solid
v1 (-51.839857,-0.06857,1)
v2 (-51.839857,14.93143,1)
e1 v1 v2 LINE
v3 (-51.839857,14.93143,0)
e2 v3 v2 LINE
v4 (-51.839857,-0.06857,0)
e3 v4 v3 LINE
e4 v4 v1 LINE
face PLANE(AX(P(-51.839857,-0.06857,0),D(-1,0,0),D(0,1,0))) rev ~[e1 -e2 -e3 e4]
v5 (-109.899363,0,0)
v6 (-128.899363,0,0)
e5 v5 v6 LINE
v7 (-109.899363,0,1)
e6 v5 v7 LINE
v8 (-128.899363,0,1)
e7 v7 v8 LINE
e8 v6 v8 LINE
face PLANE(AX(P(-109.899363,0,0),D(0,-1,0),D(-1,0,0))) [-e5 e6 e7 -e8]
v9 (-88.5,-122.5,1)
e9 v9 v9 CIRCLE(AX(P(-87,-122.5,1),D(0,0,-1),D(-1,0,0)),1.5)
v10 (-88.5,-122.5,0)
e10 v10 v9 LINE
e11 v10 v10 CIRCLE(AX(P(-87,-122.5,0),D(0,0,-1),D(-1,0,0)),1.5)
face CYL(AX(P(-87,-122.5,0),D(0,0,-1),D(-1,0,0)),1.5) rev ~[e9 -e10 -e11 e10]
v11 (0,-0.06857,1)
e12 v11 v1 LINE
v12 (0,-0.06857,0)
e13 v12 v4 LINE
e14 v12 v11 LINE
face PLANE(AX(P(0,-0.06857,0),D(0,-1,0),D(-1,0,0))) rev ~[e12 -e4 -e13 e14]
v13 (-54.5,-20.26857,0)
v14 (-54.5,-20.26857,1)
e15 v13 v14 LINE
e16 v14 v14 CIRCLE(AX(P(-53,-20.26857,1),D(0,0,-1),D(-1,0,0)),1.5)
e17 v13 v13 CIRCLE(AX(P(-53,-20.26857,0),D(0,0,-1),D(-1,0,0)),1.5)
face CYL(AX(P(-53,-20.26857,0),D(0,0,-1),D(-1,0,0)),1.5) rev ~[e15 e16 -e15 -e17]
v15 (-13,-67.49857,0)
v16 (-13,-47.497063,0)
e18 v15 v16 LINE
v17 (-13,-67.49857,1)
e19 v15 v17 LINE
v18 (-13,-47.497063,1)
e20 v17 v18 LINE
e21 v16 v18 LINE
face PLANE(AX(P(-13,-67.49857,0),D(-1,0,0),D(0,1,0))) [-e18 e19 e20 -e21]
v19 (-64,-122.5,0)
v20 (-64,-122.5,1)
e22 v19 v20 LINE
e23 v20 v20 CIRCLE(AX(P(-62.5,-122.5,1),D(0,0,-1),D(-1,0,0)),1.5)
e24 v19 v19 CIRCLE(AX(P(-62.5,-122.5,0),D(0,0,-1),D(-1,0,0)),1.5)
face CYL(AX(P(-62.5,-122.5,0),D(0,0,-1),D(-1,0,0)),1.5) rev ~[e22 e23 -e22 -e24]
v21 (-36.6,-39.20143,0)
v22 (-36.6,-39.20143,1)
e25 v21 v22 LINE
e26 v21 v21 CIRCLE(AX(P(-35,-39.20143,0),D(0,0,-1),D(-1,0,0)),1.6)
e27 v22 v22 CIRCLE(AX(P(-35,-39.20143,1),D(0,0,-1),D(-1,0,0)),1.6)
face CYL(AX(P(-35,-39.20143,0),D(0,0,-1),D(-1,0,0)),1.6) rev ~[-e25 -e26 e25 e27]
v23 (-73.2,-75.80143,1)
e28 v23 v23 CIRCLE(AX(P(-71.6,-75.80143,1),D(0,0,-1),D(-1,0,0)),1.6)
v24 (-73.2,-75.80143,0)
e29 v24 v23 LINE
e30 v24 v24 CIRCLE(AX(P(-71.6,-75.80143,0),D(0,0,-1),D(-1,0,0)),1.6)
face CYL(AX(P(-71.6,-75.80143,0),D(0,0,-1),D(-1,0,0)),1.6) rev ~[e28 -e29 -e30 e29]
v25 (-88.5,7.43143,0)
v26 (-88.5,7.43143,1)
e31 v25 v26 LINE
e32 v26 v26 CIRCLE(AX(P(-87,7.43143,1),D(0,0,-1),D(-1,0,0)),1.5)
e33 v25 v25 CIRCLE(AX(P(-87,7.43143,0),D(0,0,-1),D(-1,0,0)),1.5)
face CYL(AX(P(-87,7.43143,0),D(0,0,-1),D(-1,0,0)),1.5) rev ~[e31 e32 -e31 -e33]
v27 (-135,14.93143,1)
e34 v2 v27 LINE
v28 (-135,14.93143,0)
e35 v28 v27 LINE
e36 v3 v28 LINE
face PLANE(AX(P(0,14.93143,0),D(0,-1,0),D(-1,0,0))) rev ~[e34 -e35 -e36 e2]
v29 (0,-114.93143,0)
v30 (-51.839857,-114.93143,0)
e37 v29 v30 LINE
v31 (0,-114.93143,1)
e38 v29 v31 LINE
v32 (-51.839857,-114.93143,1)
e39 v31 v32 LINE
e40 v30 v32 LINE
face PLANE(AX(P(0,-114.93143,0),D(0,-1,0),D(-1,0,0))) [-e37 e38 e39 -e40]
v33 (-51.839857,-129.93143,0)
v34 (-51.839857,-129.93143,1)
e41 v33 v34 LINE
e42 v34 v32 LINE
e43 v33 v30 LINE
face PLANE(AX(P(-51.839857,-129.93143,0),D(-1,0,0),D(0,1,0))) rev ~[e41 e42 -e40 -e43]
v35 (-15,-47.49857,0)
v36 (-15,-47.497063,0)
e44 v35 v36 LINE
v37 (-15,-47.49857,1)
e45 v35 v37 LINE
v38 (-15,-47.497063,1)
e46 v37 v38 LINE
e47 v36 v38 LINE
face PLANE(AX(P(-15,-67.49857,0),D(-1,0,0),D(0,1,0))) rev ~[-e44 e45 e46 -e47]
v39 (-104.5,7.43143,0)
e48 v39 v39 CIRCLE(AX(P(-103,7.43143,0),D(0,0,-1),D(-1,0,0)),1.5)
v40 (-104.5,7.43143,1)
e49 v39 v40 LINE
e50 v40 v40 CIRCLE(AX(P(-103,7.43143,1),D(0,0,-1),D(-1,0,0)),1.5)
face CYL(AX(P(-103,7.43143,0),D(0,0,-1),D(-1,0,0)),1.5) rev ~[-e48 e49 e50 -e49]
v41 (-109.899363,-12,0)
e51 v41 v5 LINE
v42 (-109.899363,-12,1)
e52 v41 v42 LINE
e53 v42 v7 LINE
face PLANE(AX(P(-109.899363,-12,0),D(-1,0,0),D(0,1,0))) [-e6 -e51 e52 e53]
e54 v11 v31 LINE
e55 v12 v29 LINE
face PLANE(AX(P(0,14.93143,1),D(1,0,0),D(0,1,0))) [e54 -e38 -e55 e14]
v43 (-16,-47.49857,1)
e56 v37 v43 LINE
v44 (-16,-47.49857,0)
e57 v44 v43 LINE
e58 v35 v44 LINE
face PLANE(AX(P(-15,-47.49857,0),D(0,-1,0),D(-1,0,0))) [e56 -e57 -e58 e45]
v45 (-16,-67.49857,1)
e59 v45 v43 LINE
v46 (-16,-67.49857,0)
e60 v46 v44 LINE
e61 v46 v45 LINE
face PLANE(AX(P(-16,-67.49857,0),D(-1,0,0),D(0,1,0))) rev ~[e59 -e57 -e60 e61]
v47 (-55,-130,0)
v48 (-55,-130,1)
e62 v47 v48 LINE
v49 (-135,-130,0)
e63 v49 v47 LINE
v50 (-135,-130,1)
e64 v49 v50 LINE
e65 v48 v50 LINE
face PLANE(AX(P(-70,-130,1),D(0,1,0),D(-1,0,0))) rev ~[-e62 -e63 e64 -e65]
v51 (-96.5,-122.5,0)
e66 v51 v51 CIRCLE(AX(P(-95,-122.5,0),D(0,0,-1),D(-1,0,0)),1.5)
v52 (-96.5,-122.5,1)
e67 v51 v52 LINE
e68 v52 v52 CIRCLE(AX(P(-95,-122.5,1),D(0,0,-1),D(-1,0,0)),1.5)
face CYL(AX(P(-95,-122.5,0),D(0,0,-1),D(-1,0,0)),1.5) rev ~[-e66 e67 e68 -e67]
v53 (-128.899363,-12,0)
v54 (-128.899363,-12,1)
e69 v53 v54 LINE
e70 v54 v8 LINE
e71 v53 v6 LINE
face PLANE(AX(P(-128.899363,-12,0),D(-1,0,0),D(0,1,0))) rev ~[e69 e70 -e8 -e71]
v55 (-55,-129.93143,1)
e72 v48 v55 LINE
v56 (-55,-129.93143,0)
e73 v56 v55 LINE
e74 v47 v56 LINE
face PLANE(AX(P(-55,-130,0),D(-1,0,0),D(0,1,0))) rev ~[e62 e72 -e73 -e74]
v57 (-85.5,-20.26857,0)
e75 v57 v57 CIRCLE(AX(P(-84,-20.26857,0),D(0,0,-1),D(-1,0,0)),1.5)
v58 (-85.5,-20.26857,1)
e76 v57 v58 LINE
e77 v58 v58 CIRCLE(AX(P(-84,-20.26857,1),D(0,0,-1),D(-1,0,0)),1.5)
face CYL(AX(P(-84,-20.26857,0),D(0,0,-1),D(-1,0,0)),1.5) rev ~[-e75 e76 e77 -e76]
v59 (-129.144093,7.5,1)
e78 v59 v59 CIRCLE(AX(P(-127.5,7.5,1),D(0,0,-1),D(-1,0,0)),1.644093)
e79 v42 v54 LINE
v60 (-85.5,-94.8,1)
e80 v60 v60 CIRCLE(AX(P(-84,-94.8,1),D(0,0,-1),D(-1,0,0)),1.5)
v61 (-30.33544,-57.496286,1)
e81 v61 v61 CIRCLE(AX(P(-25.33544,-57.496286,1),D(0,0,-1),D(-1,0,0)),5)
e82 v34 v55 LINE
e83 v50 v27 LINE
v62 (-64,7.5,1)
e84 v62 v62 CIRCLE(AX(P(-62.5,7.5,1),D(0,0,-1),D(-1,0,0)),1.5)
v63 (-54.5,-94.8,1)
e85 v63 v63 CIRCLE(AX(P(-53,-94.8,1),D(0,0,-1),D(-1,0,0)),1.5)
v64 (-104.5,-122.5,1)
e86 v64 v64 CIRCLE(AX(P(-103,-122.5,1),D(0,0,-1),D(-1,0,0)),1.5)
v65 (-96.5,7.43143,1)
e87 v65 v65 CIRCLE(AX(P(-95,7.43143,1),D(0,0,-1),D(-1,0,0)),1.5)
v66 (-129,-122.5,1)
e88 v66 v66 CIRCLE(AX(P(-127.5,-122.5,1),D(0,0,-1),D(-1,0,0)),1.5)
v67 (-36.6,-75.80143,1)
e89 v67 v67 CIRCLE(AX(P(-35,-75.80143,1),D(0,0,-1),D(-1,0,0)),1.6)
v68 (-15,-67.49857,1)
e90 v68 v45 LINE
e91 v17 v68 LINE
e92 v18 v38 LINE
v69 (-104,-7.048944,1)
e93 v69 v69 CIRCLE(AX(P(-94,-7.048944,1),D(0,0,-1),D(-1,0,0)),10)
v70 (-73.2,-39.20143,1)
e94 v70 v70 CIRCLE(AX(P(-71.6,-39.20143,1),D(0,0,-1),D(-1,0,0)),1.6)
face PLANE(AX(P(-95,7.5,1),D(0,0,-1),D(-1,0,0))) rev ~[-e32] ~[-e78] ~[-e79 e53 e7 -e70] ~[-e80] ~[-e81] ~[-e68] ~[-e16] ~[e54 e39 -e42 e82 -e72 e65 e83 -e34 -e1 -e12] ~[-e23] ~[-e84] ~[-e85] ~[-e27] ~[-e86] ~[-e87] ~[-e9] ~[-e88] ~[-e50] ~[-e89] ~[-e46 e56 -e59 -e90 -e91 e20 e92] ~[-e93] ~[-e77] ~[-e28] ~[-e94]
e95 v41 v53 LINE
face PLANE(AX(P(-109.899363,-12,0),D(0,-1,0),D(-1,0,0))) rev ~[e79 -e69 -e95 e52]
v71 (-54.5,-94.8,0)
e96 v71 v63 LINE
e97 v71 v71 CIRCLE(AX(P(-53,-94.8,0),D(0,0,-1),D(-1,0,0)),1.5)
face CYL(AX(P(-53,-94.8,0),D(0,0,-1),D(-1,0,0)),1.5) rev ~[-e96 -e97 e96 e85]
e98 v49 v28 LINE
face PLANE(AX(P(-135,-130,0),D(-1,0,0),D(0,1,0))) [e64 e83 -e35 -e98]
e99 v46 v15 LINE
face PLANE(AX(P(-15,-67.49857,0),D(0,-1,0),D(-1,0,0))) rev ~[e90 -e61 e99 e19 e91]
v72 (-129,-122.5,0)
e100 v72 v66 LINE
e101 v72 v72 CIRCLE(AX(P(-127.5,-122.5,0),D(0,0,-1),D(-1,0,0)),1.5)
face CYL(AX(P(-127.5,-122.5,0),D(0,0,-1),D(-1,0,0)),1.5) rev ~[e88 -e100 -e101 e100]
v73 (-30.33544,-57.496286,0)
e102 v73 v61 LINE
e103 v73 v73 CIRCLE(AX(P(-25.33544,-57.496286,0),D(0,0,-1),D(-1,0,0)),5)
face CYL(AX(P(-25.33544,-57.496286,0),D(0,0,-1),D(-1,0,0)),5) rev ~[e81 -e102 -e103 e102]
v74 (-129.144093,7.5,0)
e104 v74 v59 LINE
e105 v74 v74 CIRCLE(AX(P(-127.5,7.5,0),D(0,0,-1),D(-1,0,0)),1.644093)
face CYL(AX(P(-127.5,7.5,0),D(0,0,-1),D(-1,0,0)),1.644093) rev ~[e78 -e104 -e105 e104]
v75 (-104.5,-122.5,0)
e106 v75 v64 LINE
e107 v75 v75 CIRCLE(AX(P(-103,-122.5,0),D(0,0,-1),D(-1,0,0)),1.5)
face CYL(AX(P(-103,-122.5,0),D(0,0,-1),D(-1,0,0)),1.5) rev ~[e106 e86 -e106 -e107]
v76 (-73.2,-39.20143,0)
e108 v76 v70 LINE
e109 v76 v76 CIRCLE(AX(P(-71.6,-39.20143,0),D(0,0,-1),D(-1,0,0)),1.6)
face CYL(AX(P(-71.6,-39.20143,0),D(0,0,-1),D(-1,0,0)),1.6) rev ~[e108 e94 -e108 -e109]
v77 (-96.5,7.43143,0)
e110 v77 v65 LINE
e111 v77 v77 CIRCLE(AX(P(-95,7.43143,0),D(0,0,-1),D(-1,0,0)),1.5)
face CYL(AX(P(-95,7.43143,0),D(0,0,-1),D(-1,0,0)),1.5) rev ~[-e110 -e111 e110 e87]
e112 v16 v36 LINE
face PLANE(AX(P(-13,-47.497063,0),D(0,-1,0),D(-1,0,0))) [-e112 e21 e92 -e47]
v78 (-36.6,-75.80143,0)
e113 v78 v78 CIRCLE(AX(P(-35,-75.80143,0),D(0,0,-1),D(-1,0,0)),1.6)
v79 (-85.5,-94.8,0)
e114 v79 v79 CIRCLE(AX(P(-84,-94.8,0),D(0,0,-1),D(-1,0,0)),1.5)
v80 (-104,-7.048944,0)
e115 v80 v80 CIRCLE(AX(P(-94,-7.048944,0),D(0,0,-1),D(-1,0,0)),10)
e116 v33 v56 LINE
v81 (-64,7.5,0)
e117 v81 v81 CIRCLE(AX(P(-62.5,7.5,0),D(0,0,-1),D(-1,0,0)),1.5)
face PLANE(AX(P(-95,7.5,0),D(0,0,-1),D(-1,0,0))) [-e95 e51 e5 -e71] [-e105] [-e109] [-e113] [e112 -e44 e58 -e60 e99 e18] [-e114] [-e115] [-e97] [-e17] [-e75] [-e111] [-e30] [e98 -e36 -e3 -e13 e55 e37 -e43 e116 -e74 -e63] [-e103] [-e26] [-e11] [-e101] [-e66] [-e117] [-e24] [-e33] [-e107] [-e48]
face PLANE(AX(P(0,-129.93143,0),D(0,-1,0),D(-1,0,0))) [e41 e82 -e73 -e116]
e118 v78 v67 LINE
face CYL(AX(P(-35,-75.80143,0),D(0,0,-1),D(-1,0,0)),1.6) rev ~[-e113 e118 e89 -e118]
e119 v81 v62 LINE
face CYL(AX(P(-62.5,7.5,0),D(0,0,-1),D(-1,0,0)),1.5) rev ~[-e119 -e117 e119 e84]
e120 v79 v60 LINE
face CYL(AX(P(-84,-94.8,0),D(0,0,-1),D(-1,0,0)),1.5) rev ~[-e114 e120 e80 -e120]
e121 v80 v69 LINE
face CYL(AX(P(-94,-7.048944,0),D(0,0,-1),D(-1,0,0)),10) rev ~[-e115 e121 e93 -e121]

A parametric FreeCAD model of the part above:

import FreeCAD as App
import Part
import Sketcher

V = App.Vector
Q = App.Units.Quantity

doc = App.newDocument("Part")
body = doc.addObject("PartDesign::Body", "Body")
body.AllowCompound = True

# Sketch on XY plane
sketch1 = body.newObject("Sketcher::SketchObject", "Sketch")
sketch1.AttachmentSupport = (doc.getObject("XY_Plane"), [""])
sketch1.MapMode = "FlatFace"
sketch1.addGeometry(Part.LineSegment(V(-135, 0, 0), V(-135, -115, 0)), False)
sketch1.addGeometry(Part.LineSegment(V(-135, -115, 0), V(0, -115, 0)), False)
sketch1.addGeometry(Part.LineSegment(V(0, -115, 0), V(0, 0, 0)), False)
sketch1.addGeometry(Part.LineSegment(V(0, 0, 0), V(-135, 0, 0)), False)
sketch1.addConstraint(Sketcher.Constraint("Coincident", 0, 2, 1, 1))
sketch1.addConstraint(Sketcher.Constraint("Coincident", 1, 2, 2, 1))
sketch1.addConstraint(Sketcher.Constraint("Coincident", 2, 2, 3, 1))
sketch1.addConstraint(Sketcher.Constraint("Coincident", 3, 2, 0, 1))
sketch1.addConstraint(Sketcher.Constraint("Vertical", 0))
sketch1.addConstraint(Sketcher.Constraint("Horizontal", 1))
sketch1.addConstraint(Sketcher.Constraint("Vertical", 2))
sketch1.addConstraint(Sketcher.Constraint("Horizontal", 3))
sketch1.addConstraint(Sketcher.Constraint("Coincident", 2, 2, -1, 1))
sketch1.addConstraint(Sketcher.Constraint("DistanceX", 1, 1, 1, 2, Q("135 mm")))
sketch1.addConstraint(Sketcher.Constraint("DistanceY", 0, 2, 0, 1, Q("115 mm")))
pad1 = body.newObject("PartDesign::Pad", "Pad")
pad1.Profile = sketch1
pad1.Length = 1

# Sketch on XY plane
sketch2 = body.newObject("Sketcher::SketchObject", "Sketch001")
sketch2.AttachmentSupport = (doc.getObject("XY_Plane"), [""])
sketch2.MapMode = "FlatFace"
sketch2.addGeometry(Part.LineSegment(V(-120, -115, 0), V(-120, -130, 0)), False)
sketch2.addGeometry(Part.LineSegment(V(-120, -130, 0), V(-135, -130, 0)), False)
sketch2.addGeometry(Part.LineSegment(V(-135, -130, 0), V(-135, -115, 0)), False)
sketch2.addGeometry(Part.LineSegment(V(-135, -115, 0), V(-120, -115, 0)), False)
sketch2.addGeometry(Part.LineSegment(V(-120, 15, 0), V(-120, 0, 0)), False)
sketch2.addGeometry(Part.LineSegment(V(-120, 0, 0), V(-135, 0, 0)), False)
sketch2.addGeometry(Part.LineSegment(V(-135, 0, 0), V(-135, 15, 0)), False)
sketch2.addGeometry(Part.LineSegment(V(-135, 15, 0), V(-120, 15, 0)), False)
sketch2.addConstraint(Sketcher.Constraint("Coincident", 0, 2, 1, 1))
sketch2.addConstraint(Sketcher.Constraint("Coincident", 1, 2, 2, 1))
sketch2.addConstraint(Sketcher.Constraint("Coincident", 2, 2, 3, 1))
sketch2.addConstraint(Sketcher.Constraint("Coincident", 3, 2, 0, 1))
sketch2.addConstraint(Sketcher.Constraint("Coincident", 4, 2, 5, 1))
sketch2.addConstraint(Sketcher.Constraint("Coincident", 5, 2, 6, 1))
sketch2.addConstraint(Sketcher.Constraint("Coincident", 6, 2, 7, 1))
sketch2.addConstraint(Sketcher.Constraint("Coincident", 7, 2, 4, 1))
sketch2.addConstraint(Sketcher.Constraint("Vertical", 0))
sketch2.addConstraint(Sketcher.Constraint("Horizontal", 1))
sketch2.addConstraint(Sketcher.Constraint("Vertical", 2))
sketch2.addConstraint(Sketcher.Constraint("Horizontal", 3))
sketch2.addConstraint(Sketcher.Constraint("Vertical", 4))
sketch2.addConstraint(Sketcher.Constraint("Horizontal", 5))
sketch2.addConstraint(Sketcher.Constraint("Vertical", 6))
sketch2.addConstraint(Sketcher.Constraint("Horizontal", 7))
sketch2.addConstraint(Sketcher.Constraint("PointOnObject", 4, 2, -1))
sketch2.addConstraint(Sketcher.Constraint("Vertical", 3, 2, 4, 2))
sketch2.addConstraint(Sketcher.Constraint("Vertical", 2, 2, 5, 2))
sketch2.addConstraint(Sketcher.Constraint("Equal", 7, 0))
sketch2.addConstraint(Sketcher.Constraint("Equal", 2, 4))
sketch2.addConstraint(Sketcher.Constraint("DistanceX", 1, 2, 1, 1, Q("15 mm")))
sketch2.addConstraint(Sketcher.Constraint("DistanceX", 0, 2, -1, 1, Q("120 mm")))
sketch2.addConstraint(Sketcher.Constraint("DistanceY", 0, 2, -1, 1, Q("130 mm")))
pad2 = body.newObject("PartDesign::Pad", "Pad001")
pad2.Profile = sketch2
pad2.Length = 1

# Sketch on XY plane
sketch3 = body.newObject("Sketcher::SketchObject", "Sketch002")
sketch3.AttachmentSupport = (doc.getObject("XY_Plane"), [""])
sketch3.MapMode = "FlatFace"
sketch3.addGeometry(Part.LineSegment(V(-55, -115, 0), V(-55, -130, 0)), False)
sketch3.addGeometry(Part.LineSegment(V(-55, -130, 0), V(-70, -130, 0)), False)
sketch3.addGeometry(Part.LineSegment(V(-70, -130, 0), V(-70, -115, 0)), False)
sketch3.addGeometry(Part.LineSegment(V(-70, -115, 0), V(-55, -115, 0)), False)
sketch3.addGeometry(Part.LineSegment(V(-55, 15, 0), V(-55, 0, 0)), False)
sketch3.addGeometry(Part.LineSegment(V(-55, 0, 0), V(-70, 0, 0)), False)
sketch3.addGeometry(Part.LineSegment(V(-70, 0, 0), V(-70, 15, 0)), False)
sketch3.addGeometry(Part.LineSegment(V(-70, 15, 0), V(-55, 15, 0)), False)
sketch3.addConstraint(Sketcher.Constraint("Coincident", 0, 2, 1, 1))
sketch3.addConstraint(Sketcher.Constraint("Coincident", 1, 2, 2, 1))
sketch3.addConstraint(Sketcher.Constraint("Coincident", 2, 2, 3, 1))
sketch3.addConstraint(Sketcher.Constraint("Coincident", 3, 2, 0, 1))
sketch3.addConstraint(Sketcher.Constraint("Coincident", 4, 2, 5, 1))
sketch3.addConstraint(Sketcher.Constraint("Coincident", 5, 2, 6, 1))
sketch3.addConstraint(Sketcher.Constraint("Coincident", 6, 2, 7, 1))
sketch3.addConstraint(Sketcher.Constraint("Coincident", 7, 2, 4, 1))
sketch3.addConstraint(Sketcher.Constraint("Vertical", 0))
sketch3.addConstraint(Sketcher.Constraint("Horizontal", 1))
sketch3.addConstraint(Sketcher.Constraint("Vertical", 2))
sketch3.addConstraint(Sketcher.Constraint("Horizontal", 3))
sketch3.addConstraint(Sketcher.Constraint("Vertical", 4))
sketch3.addConstraint(Sketcher.Constraint("Horizontal", 5))
sketch3.addConstraint(Sketcher.Constraint("Vertical", 6))
sketch3.addConstraint(Sketcher.Constraint("Horizontal", 7))
sketch3.addConstraint(Sketcher.Constraint("PointOnObject", 4, 2, -1))
sketch3.addConstraint(Sketcher.Constraint("Vertical", 3, 2, 4, 2))
sketch3.addConstraint(Sketcher.Constraint("Vertical", 2, 2, 5, 2))
sketch3.addConstraint(Sketcher.Constraint("Equal", 7, 0))
sketch3.addConstraint(Sketcher.Constraint("Equal", 2, 4))
sketch3.addConstraint(Sketcher.Constraint("DistanceX", 1, 2, 1, 1, Q("15 mm")))
sketch3.addConstraint(Sketcher.Constraint("DistanceX", 0, 2, -1, 1, Q("55 mm")))
sketch3.addConstraint(Sketcher.Constraint("DistanceY", 0, 2, -1, 1, Q("130 mm")))
pad3 = body.newObject("PartDesign::Pad", "Pad002")
pad3.Profile = sketch3
pad3.Length = 1

# Sketch on XY plane
sketch4 = body.newObject("Sketcher::SketchObject", "Sketch003")
sketch4.AttachmentSupport = (doc.getObject("XY_Plane"), [""])
sketch4.MapMode = "FlatFace"
sketch4.addGeometry(Part.Circle(V(-62.5, -122.5, 0), V(0, 0, 1), 1.5), False)
sketch4.addGeometry(Part.Circle(V(-127.5, -122.5, 0), V(0, 0, 1), 1.5), False)
sketch4.addGeometry(Part.Circle(V(-62.5, 7.5, 0), V(0, 0, 1), 1.5), False)
sketch4.addGeometry(Part.Circle(V(-127.5, 7.5, 0), V(0, 0, 1), 1.6), False)
sketch4.addConstraint(Sketcher.Constraint("Equal", 0, 1))
sketch4.addConstraint(Sketcher.Constraint("Equal", 1, 2))
sketch4.addConstraint(Sketcher.Constraint("Horizontal", 0, 3, 1, 3))
sketch4.addConstraint(Sketcher.Constraint("Horizontal", 2, 3, 3, 3))
sketch4.addConstraint(Sketcher.Constraint("Vertical", 0, 3, 2, 3))
sketch4.addConstraint(Sketcher.Constraint("Vertical", 1, 3, 3, 3))
sketch4.addConstraint(Sketcher.Constraint("Diameter", 0, Q("3 mm")))
sketch4.addConstraint(Sketcher.Constraint("DistanceX", 1, 3, 0, 3, Q("65 mm")))
sketch4.addConstraint(Sketcher.Constraint("DistanceY", 0, 3, 2, 3, Q("130 mm")))
sketch4.addConstraint(Sketcher.Constraint("DistanceX", 0, 3, -1, 1, Q("62.5 mm")))
sketch4.addConstraint(Sketcher.Constraint("DistanceY", 0, 3, -1, 1, Q("122.5 mm")))
sketch4.addConstraint(Sketcher.Constraint("Diameter", 3, Q("3.288186 mm")))
pocket1 = body.newObject("PartDesign::Pocket", "Pocket")
pocket1.Profile = sketch4
pocket1.Length = 1
pocket1.Reversed = True

# Sketch on XY plane
sketch5 = body.newObject("Sketcher::SketchObject", "Sketch004")
sketch5.AttachmentSupport = (doc.getObject("XY_Plane"), [""])
sketch5.MapMode = "FlatFace"
sketch5.AttachmentOffset = App.Placement(V(0, 0, 1), App.Rotation())
sketch5.addGeometry(Part.LineSegment(V(-70, -115, 0), V(-70, -130, 0)), False)
sketch5.addGeometry(Part.LineSegment(V(-70, -130, 0), V(-120, -130, 0)), False)
sketch5.addGeometry(Part.LineSegment(V(-120, -130, 0), V(-120, -115, 0)), False)
sketch5.addGeometry(Part.LineSegment(V(-120, -115, 0), V(-70, -115, 0)), False)
sketch5.addConstraint(Sketcher.Constraint("Coincident", 0, 2, 1, 1))
sketch5.addConstraint(Sketcher.Constraint("Coincident", 1, 2, 2, 1))
sketch5.addConstraint(Sketcher.Constraint("Coincident", 2, 2, 3, 1))
sketch5.addConstraint(Sketcher.Constraint("Coincident", 3, 2, 0, 1))
sketch5.addConstraint(Sketcher.Constraint("Vertical", 0))
sketch5.addConstraint(Sketcher.Constraint("Horizontal", 1))
sketch5.addConstraint(Sketcher.Constraint("Vertical", 2))
sketch5.addConstraint(Sketcher.Constraint("Horizontal", 3))
sketch5.addConstraint(Sketcher.Constraint("DistanceX", 1, 2, 1, 1, Q("50 mm")))
sketch5.addConstraint(Sketcher.Constraint("DistanceY", 0, 2, 0, 1, Q("15 mm")))
sketch5.addConstraint(Sketcher.Constraint("DistanceX", 0, 2, -1, 1, Q("70 mm")))
sketch5.addConstraint(Sketcher.Constraint("DistanceY", 0, 2, -1, 1, Q("130 mm")))
pad4 = body.newObject("PartDesign::Pad", "Pad003")
pad4.Profile = sketch5
pad4.Length = 1
pad4.Reversed = True

# Sketch on XY plane
sketch6 = body.newObject("Sketcher::SketchObject", "Sketch005")
sketch6.AttachmentSupport = (doc.getObject("XY_Plane"), [""])
sketch6.MapMode = "FlatFace"
sketch6.addGeometry(Part.LineSegment(V(0, -115, 0), V(0, -130, 0)), False)
sketch6.addGeometry(Part.LineSegment(V(0, -130, 0), V(-55, -130, 0)), False)
sketch6.addGeometry(Part.LineSegment(V(-55, -130, 0), V(-55, -115, 0)), False)
sketch6.addGeometry(Part.LineSegment(V(-55, -115, 0), V(0, -115, 0)), False)
sketch6.addConstraint(Sketcher.Constraint("Coincident", 0, 2, 1, 1))
sketch6.addConstraint(Sketcher.Constraint("Coincident", 1, 2, 2, 1))
sketch6.addConstraint(Sketcher.Constraint("Coincident", 2, 2, 3, 1))
sketch6.addConstraint(Sketcher.Constraint("Coincident", 3, 2, 0, 1))
sketch6.addConstraint(Sketcher.Constraint("Vertical", 0))
sketch6.addConstraint(Sketcher.Constraint("Horizontal", 1))
sketch6.addConstraint(Sketcher.Constraint("Vertical", 2))
sketch6.addConstraint(Sketcher.Constraint("Horizontal", 3))
sketch6.addConstraint(Sketcher.Constraint("PointOnObject", 0, 2, -2))
sketch6.addConstraint(Sketcher.Constraint("DistanceX", 1, 2, 1, 1, Q("55 mm")))
sketch6.addConstraint(Sketcher.Constraint("DistanceY", 2, 2, -1, 1, Q("115 mm")))
sketch6.addConstraint(Sketcher.Constraint("DistanceY", 0, 2, 0, 1, Q("14.93143 mm")))
pad5 = body.newObject("PartDesign::Pad", "Pad004")
pad5.Profile = sketch6
pad5.Length = 1

# Sketch on XY plane
sketch7 = body.newObject("Sketcher::SketchObject", "Sketch006")
sketch7.AttachmentSupport = (doc.getObject("XY_Plane"), [""])
sketch7.MapMode = "FlatFace"
sketch7.addGeometry(Part.LineSegment(V(0, 15, 0), V(0, 0, 0)), False)
sketch7.addGeometry(Part.LineSegment(V(0, 0, 0), V(-55, 0, 0)), False)
sketch7.addGeometry(Part.LineSegment(V(-55, 0, 0), V(-55, 15, 0)), False)
sketch7.addGeometry(Part.LineSegment(V(-55, 15, 0), V(0, 15, 0)), False)
sketch7.addConstraint(Sketcher.Constraint("Coincident", 0, 2, 1, 1))
sketch7.addConstraint(Sketcher.Constraint("Coincident", 1, 2, 2, 1))
sketch7.addConstraint(Sketcher.Constraint("Coincident", 2, 2, 3, 1))
sketch7.addConstraint(Sketcher.Constraint("Coincident", 3, 2, 0, 1))
sketch7.addConstraint(Sketcher.Constraint("Vertical", 0))
sketch7.addConstraint(Sketcher.Constraint("Horizontal", 1))
sketch7.addConstraint(Sketcher.Constraint("Vertical", 2))
sketch7.addConstraint(Sketcher.Constraint("Horizontal", 3))
sketch7.addConstraint(Sketcher.Constraint("Coincident", 0, 2, -1, 1))
sketch7.addConstraint(Sketcher.Constraint("DistanceX", 1, 2, 1, 1, Q("55 mm")))
sketch7.addConstraint(Sketcher.Constraint("DistanceY", 0, 2, 0, 1, Q("14.93143 mm")))
pad6 = body.newObject("PartDesign::Pad", "Pad005")
pad6.Profile = sketch7
pad6.Length = 1

# Sketch on XY plane
sketch8 = body.newObject("Sketcher::SketchObject", "Sketch007")
sketch8.AttachmentSupport = (doc.getObject("XY_Plane"), [""])
sketch8.MapMode = "FlatFace"
sketch8.addGeometry(Part.LineSegment(V(-70, 15, 0), V(-70, 0, 0)), False)
sketch8.addGeometry(Part.LineSegment(V(-70, 0, 0), V(-120, 0, 0)), False)
sketch8.addGeometry(Part.LineSegment(V(-120, 0, 0), V(-120, 15, 0)), False)
sketch8.addGeometry(Part.LineSegment(V(-120, 15, 0), V(-70, 15, 0)), False)
sketch8.addConstraint(Sketcher.Constraint("Coincident", 0, 2, 1, 1))
sketch8.addConstraint(Sketcher.Constraint("Coincident", 1, 2, 2, 1))
sketch8.addConstraint(Sketcher.Constraint("Coincident", 2, 2, 3, 1))
sketch8.addConstraint(Sketcher.Constraint("Coincident", 3, 2, 0, 1))
sketch8.addConstraint(Sketcher.Constraint("Vertical", 0))
sketch8.addConstraint(Sketcher.Constraint("Horizontal", 1))
sketch8.addConstraint(Sketcher.Constraint("Vertical", 2))
sketch8.addConstraint(Sketcher.Constraint("Horizontal", 3))
sketch8.addConstraint(Sketcher.Constraint("PointOnObject", 0, 2, -1))
sketch8.addConstraint(Sketcher.Constraint("DistanceX", 1, 2, 1, 1, Q("50 mm")))
sketch8.addConstraint(Sketcher.Constraint("DistanceY", 0, 2, 0, 1, Q("15 mm")))
sketch8.addConstraint(Sketcher.Constraint("DistanceX", 0, 2, -1, 1, Q("70 mm")))
pad7 = body.newObject("PartDesign::Pad", "Pad006")
pad7.Profile = sketch8
pad7.Length = 1

# Sketch on XY plane
sketch9 = body.newObject("Sketcher::SketchObject", "Sketch008")
sketch9.AttachmentSupport = (doc.getObject("XY_Plane"), [""])
sketch9.MapMode = "FlatFace"
sketch9.AttachmentOffset = App.Placement(V(0, 0, 1), App.Rotation())
sketch9.addGeometry(Part.LineSegment(V(-135, 35, 0), V(-135, 15, 0)), False)
sketch9.addGeometry(Part.LineSegment(V(-135, 15, 0), V(0, 15, 0)), False)
sketch9.addGeometry(Part.LineSegment(V(0, 15, 0), V(0, 35, 0)), False)
sketch9.addGeometry(Part.LineSegment(V(0, 35, 0), V(-135, 35, 0)), False)
sketch9.addConstraint(Sketcher.Constraint("Coincident", 0, 2, 1, 1))
sketch9.addConstraint(Sketcher.Constraint("Coincident", 1, 2, 2, 1))
sketch9.addConstraint(Sketcher.Constraint("Coincident", 2, 2, 3, 1))
sketch9.addConstraint(Sketcher.Constraint("Coincident", 3, 2, 0, 1))
sketch9.addConstraint(Sketcher.Constraint("Vertical", 0))
sketch9.addConstraint(Sketcher.Constraint("Horizontal", 1))
sketch9.addConstraint(Sketcher.Constraint("Vertical", 2))
sketch9.addConstraint(Sketcher.Constraint("Horizontal", 3))
sketch9.addConstraint(Sketcher.Constraint("PointOnObject", 1, 2, -2))
sketch9.addConstraint(Sketcher.Constraint("DistanceX", 1, 1, 1, 2, Q("135 mm")))
sketch9.addConstraint(Sketcher.Constraint("DistanceY", 0, 2, 0, 1, Q("20 mm")))
sketch9.addConstraint(Sketcher.Constraint("DistanceY", -1, 1, 0, 2, Q("14.93143 mm")))
pad8 = body.newObject("PartDesign::Pad", "Pad007")
pad8.Profile = sketch9
pad8.Length = 1
pad8.Reversed = True

# Sketch on XY plane
sketch10 = body.newObject("Sketcher::SketchObject", "Sketch009")
sketch10.AttachmentSupport = (doc.getObject("XY_Plane"), [""])
sketch10.MapMode = "FlatFace"
sketch10.addGeometry(Part.LineSegment(V(0, 35, 0), V(0, 15, 0)), False)
sketch10.addGeometry(Part.LineSegment(V(0, 15, 0), V(-135, 15, 0)), False)
sketch10.addGeometry(Part.LineSegment(V(-135, 15, 0), V(-135, 35, 0)), False)
sketch10.addGeometry(Part.LineSegment(V(-135, 35, 0), V(0, 35, 0)), False)
sketch10.addConstraint(Sketcher.Constraint("Coincident", 0, 2, 1, 1))
sketch10.addConstraint(Sketcher.Constraint("Coincident", 1, 2, 2, 1))
sketch10.addConstraint(Sketcher.Constraint("Coincident", 2, 2, 3, 1))
sketch10.addConstraint(Sketcher.Constraint("Coincident", 3, 2, 0, 1))
sketch10.addConstraint(Sketcher.Constraint("Vertical", 0))
sketch10.addConstraint(Sketcher.Constraint("Horizontal", 1))
sketch10.addConstraint(Sketcher.Constraint("Vertical", 2))
sketch10.addConstraint(Sketcher.Constraint("Horizontal", 3))
sketch10.addConstraint(Sketcher.Constraint("PointOnObject", 0, 2, -2))
sketch10.addConstraint(Sketcher.Constraint("DistanceX", 1, 2, 1, 1, Q("135 mm")))
sketch10.addConstraint(Sketcher.Constraint("DistanceY", 0, 2, 0, 1, Q("20 mm")))
sketch10.addConstraint(Sketcher.Constraint("DistanceY", -1, 1, 0, 2, Q("14.93143 mm")))
pocket2 = body.newObject("PartDesign::Pocket", "Pocket001")
pocket2.Profile = sketch10
pocket2.Length = 1
pocket2.Reversed = True

# Sketch on XY plane
sketch11 = body.newObject("Sketcher::SketchObject", "Sketch010")
sketch11.AttachmentSupport = (doc.getObject("XY_Plane"), [""])
sketch11.MapMode = "FlatFace"
sketch11.addGeometry(Part.LineSegment(V(0, -115, 0), V(0, -130, 0)), False)
sketch11.addGeometry(Part.LineSegment(V(0, -130, 0), V(-52, -130, 0)), False)
sketch11.addGeometry(Part.LineSegment(V(-52, -130, 0), V(-52, -115, 0)), False)
sketch11.addGeometry(Part.LineSegment(V(-52, -115, 0), V(0, -115, 0)), False)
sketch11.addGeometry(Part.LineSegment(V(0, 15, 0), V(0, 0, 0)), False)
sketch11.addGeometry(Part.LineSegment(V(0, 0, 0), V(-52, 0, 0)), False)
sketch11.addGeometry(Part.LineSegment(V(-52, 0, 0), V(-52, 15, 0)), False)
sketch11.addGeometry(Part.LineSegment(V(-52, 15, 0), V(0, 15, 0)), False)
sketch11.addConstraint(Sketcher.Constraint("Coincident", 0, 2, 1, 1))
sketch11.addConstraint(Sketcher.Constraint("Coincident", 1, 2, 2, 1))
sketch11.addConstraint(Sketcher.Constraint("Coincident", 2, 2, 3, 1))
sketch11.addConstraint(Sketcher.Constraint("Coincident", 3, 2, 0, 1))
sketch11.addConstraint(Sketcher.Constraint("Coincident", 4, 2, 5, 1))
sketch11.addConstraint(Sketcher.Constraint("Coincident", 5, 2, 6, 1))
sketch11.addConstraint(Sketcher.Constraint("Coincident", 6, 2, 7, 1))
sketch11.addConstraint(Sketcher.Constraint("Coincident", 7, 2, 4, 1))
sketch11.addConstraint(Sketcher.Constraint("Vertical", 0))
sketch11.addConstraint(Sketcher.Constraint("Horizontal", 1))
sketch11.addConstraint(Sketcher.Constraint("Vertical", 2))
sketch11.addConstraint(Sketcher.Constraint("Horizontal", 3))
sketch11.addConstraint(Sketcher.Constraint("Vertical", 4))
sketch11.addConstraint(Sketcher.Constraint("Horizontal", 5))
sketch11.addConstraint(Sketcher.Constraint("Vertical", 6))
sketch11.addConstraint(Sketcher.Constraint("Horizontal", 7))
sketch11.addConstraint(Sketcher.Constraint("PointOnObject", 0, 2, -2))
sketch11.addConstraint(Sketcher.Constraint("PointOnObject", 4, 2, -2))
sketch11.addConstraint(Sketcher.Constraint("Vertical", 2, 2, 5, 2))
sketch11.addConstraint(Sketcher.Constraint("Equal", 2, 4))
sketch11.addConstraint(Sketcher.Constraint("DistanceY", 0, 2, 0, 1, Q("15 mm")))
sketch11.addConstraint(Sketcher.Constraint("DistanceX", 1, 2, 1, 1, Q("51.839857 mm")))
sketch11.addConstraint(Sketcher.Constraint("DistanceY", 0, 2, -1, 1, Q("129.93143 mm")))
sketch11.addConstraint(Sketcher.Constraint("DistanceY", 4, 2, -1, 1, Q("0.06857 mm")))
pocket3 = body.newObject("PartDesign::Pocket", "Pocket002")
pocket3.Profile = sketch11
pocket3.Length = 1
pocket3.Reversed = True

# Sketch on XY plane
sketch12 = body.newObject("Sketcher::SketchObject", "Sketch011")
sketch12.AttachmentSupport = (doc.getObject("XY_Plane"), [""])
sketch12.MapMode = "FlatFace"
sketch12.addGeometry(Part.Circle(V(-71.8, -125, 0), V(0, 0, 1), 1.5), False)
sketch12.addGeometry(Part.Circle(V(-113.5, -125, 0), V(0, 0, 1), 1.5), False)
sketch12.addGeometry(Part.Circle(V(-100, -125, 0), V(0, 0, 1), 1.5), False)
sketch12.addGeometry(Part.Circle(V(-87, -125, 0), V(0, 0, 1), 1.5), False)
sketch12.addGeometry(Part.Circle(V(-100, 9.9, 0), V(0, 0, 1), 1.5), False)
sketch12.addGeometry(Part.Circle(V(-87, 9.9, 0), V(0, 0, 1), 1.5), False)
sketch12.addGeometry(Part.Circle(V(-33, -109.9, 0), V(0, 0, 1), 1.5), False)
sketch12.addGeometry(Part.Circle(V(-20, -109.6, 0), V(0, 0, 1), 1.5), False)
sketch12.addGeometry(Part.Circle(V(-33, -5.1, 0), V(0, 0, 1), 1.5), False)
sketch12.addGeometry(Part.Circle(V(-20, -5.1, 0), V(0, 0, 1), 1.5), False)
sketch12.addConstraint(Sketcher.Constraint("Equal", 0, 1))
sketch12.addConstraint(Sketcher.Constraint("Equal", 1, 2))
sketch12.addConstraint(Sketcher.Constraint("Equal", 2, 3))
sketch12.addConstraint(Sketcher.Constraint("Equal", 3, 4))
sketch12.addConstraint(Sketcher.Constraint("Equal", 4, 5))
sketch12.addConstraint(Sketcher.Constraint("Equal", 5, 6))
sketch12.addConstraint(Sketcher.Constraint("Equal", 6, 7))
sketch12.addConstraint(Sketcher.Constraint("Equal", 7, 8))
sketch12.addConstraint(Sketcher.Constraint("Equal", 8, 9))
sketch12.addConstraint(Sketcher.Constraint("Horizontal", 0, 3, 1, 3))
sketch12.addConstraint(Sketcher.Constraint("Horizontal", 1, 3, 2, 3))
sketch12.addConstraint(Sketcher.Constraint("Horizontal", 2, 3, 3, 3))
sketch12.addConstraint(Sketcher.Constraint("Horizontal", 4, 3, 5, 3))
sketch12.addConstraint(Sketcher.Constraint("Horizontal", 8, 3, 9, 3))
sketch12.addConstraint(Sketcher.Constraint("Vertical", 2, 3, 4, 3))
sketch12.addConstraint(Sketcher.Constraint("Vertical", 3, 3, 5, 3))
sketch12.addConstraint(Sketcher.Constraint("Vertical", 6, 3, 8, 3))
sketch12.addConstraint(Sketcher.Constraint("Vertical", 7, 3, 9, 3))
sketch12.addConstraint(Sketcher.Constraint("Diameter", 0, Q("3 mm")))
sketch12.addConstraint(Sketcher.Constraint("DistanceY", 0, 3, -1, 1, Q("125 mm")))
sketch12.addConstraint(Sketcher.Constraint("DistanceX", 2, 3, -1, 1, Q("100 mm")))
sketch12.addConstraint(Sketcher.Constraint("DistanceX", 3, 3, -1, 1, Q("87 mm")))
sketch12.addConstraint(Sketcher.Constraint("DistanceX", 7, 3, -1, 1, Q("20 mm")))
sketch12.addConstraint(Sketcher.Constraint("DistanceY", 8, 3, 5, 3, Q("15 mm")))
sketch12.addConstraint(Sketcher.Constraint("DistanceY", 7, 3, 8, 3, Q("104.562598 mm")))
sketch12.addConstraint(Sketcher.Constraint("DistanceX", 1, 3, -1, 1, Q("113.463351 mm")))
sketch12.addConstraint(Sketcher.Constraint("DistanceY", -1, 1, 4, 3, Q("9.93143 mm")))
sketch12.addConstraint(Sketcher.Constraint("DistanceX", 6, 3, -1, 1, Q("32.996532 mm")))
sketch12.addConstraint(Sketcher.Constraint("DistanceY", 6, 3, -1, 1, Q("109.93143 mm")))
sketch12.addConstraint(Sketcher.Constraint("DistanceX", 0, 3, -1, 1, Q("71.839857 mm")))
pocket4 = body.newObject("PartDesign::Pocket", "Pocket003")
pocket4.Profile = sketch12
pocket4.Length = 10
pocket4.Reversed = True

# Sketch on XY plane
sketch13 = body.newObject("Sketcher::SketchObject", "Sketch012")
sketch13.AttachmentSupport = (doc.getObject("XY_Plane"), [""])
sketch13.MapMode = "FlatFace"
sketch13.addGeometry(Part.Circle(V(-130, -95, 0), V(0, 0, 1), 1.5), False)
sketch13.addGeometry(Part.Circle(V(-130, -82, 0), V(0, 0, 1), 1.5), False)
sketch13.addGeometry(Part.Circle(V(-130, -33.1, 0), V(0, 0, 1), 1.5), False)
sketch13.addGeometry(Part.Circle(V(-130, -20.1, 0), V(0, 0, 1), 1.5), False)
sketch13.addConstraint(Sketcher.Constraint("Equal", 0, 1))
sketch13.addConstraint(Sketcher.Constraint("Equal", 1, 2))
sketch13.addConstraint(Sketcher.Constraint("Equal", 2, 3))
sketch13.addConstraint(Sketcher.Constraint("Vertical", 0, 3, 1, 3))
sketch13.addConstraint(Sketcher.Constraint("Vertical", 1, 3, 2, 3))
sketch13.addConstraint(Sketcher.Constraint("Vertical", 2, 3, 3, 3))
sketch13.addConstraint(Sketcher.Constraint("Diameter", 0, Q("3 mm")))
sketch13.addConstraint(Sketcher.Constraint("DistanceX", 0, 3, -1, 1, Q("130 mm")))
sketch13.addConstraint(Sketcher.Constraint("DistanceY", 0, 3, -1, 1, Q("95 mm")))
sketch13.addConstraint(Sketcher.Constraint("DistanceY", 1, 3, -1, 1, Q("82 mm")))
sketch13.addConstraint(Sketcher.Constraint("DistanceY", 2, 3, 3, 3, Q("13 mm")))
sketch13.addConstraint(Sketcher.Constraint("DistanceY", 2, 3, -1, 1, Q("33.06857 mm")))
pocket5 = body.newObject("PartDesign::Pocket", "Pocket004")
pocket5.Profile = sketch13
pocket5.Length = 10
pocket5.Reversed = True

# Sketch on XY plane
sketch14 = body.newObject("Sketcher::SketchObject", "Sketch013")
sketch14.AttachmentSupport = (doc.getObject("XY_Plane"), [""])
sketch14.MapMode = "FlatFace"
sketch14.addGeometry(Part.Circle(V(-35, -75.8, 0), V(0, 0, 1), 1.6), False)
sketch14.addGeometry(Part.Circle(V(-35, -39.2, 0), V(0, 0, 1), 1.6), False)
sketch14.addGeometry(Part.Circle(V(-71.6, -39.2, 0), V(0, 0, 1), 1.6), False)
sketch14.addGeometry(Part.Circle(V(-71.6, -75.8, 0), V(0, 0, 1), 1.6), False)
sketch14.addConstraint(Sketcher.Constraint("Equal", 0, 1))
sketch14.addConstraint(Sketcher.Constraint("Equal", 1, 2))
sketch14.addConstraint(Sketcher.Constraint("Equal", 2, 3))
sketch14.addConstraint(Sketcher.Constraint("Horizontal", 1, 3, 2, 3))
sketch14.addConstraint(Sketcher.Constraint("Horizontal", 0, 3, 3, 3))
sketch14.addConstraint(Sketcher.Constraint("Vertical", 0, 3, 1, 3))
sketch14.addConstraint(Sketcher.Constraint("Vertical", 2, 3, 3, 3))
sketch14.addConstraint(Sketcher.Constraint("Diameter", 0, Q("3.2 mm")))
sketch14.addConstraint(Sketcher.Constraint("DistanceX", 0, 3, -1, 1, Q("35 mm")))
sketch14.addConstraint(Sketcher.Constraint("DistanceX", 2, 3, -1, 1, Q("71.6 mm")))
sketch14.addConstraint(Sketcher.Constraint("DistanceY", 0, 3, 1, 3, Q("36.6 mm")))
sketch14.addConstraint(Sketcher.Constraint("DistanceY", 0, 3, -1, 1, Q("75.80143 mm")))
pocket6 = body.newObject("PartDesign::Pocket", "Pocket005")
pocket6.Profile = sketch14
pocket6.Length = 1
pocket6.Reversed = True

# Sketch on XY plane
sketch15 = body.newObject("Sketcher::SketchObject", "Sketch014")
sketch15.AttachmentSupport = (doc.getObject("XY_Plane"), [""])
sketch15.MapMode = "FlatFace"
sketch15.addGeometry(Part.Circle(V(-115, -20.3, 0), V(0, 0, 1), 1.5), False)
sketch15.addGeometry(Part.Circle(V(-115, -94.8, 0), V(0, 0, 1), 1.5), False)
sketch15.addGeometry(Part.Circle(V(-84, -20.3, 0), V(0, 0, 1), 1.5), False)
sketch15.addGeometry(Part.Circle(V(-84, -94.8, 0), V(0, 0, 1), 1.5), False)
sketch15.addGeometry(Part.Circle(V(-95, -107, 0), V(0, 0, 1), 10), False)
sketch15.addConstraint(Sketcher.Constraint("Equal", 0, 1))
sketch15.addConstraint(Sketcher.Constraint("Equal", 1, 2))
sketch15.addConstraint(Sketcher.Constraint("Equal", 2, 3))
sketch15.addConstraint(Sketcher.Constraint("Horizontal", 0, 3, 2, 3))
sketch15.addConstraint(Sketcher.Constraint("Horizontal", 1, 3, 3, 3))
sketch15.addConstraint(Sketcher.Constraint("Vertical", 0, 3, 1, 3))
sketch15.addConstraint(Sketcher.Constraint("Vertical", 2, 3, 3, 3))
sketch15.addConstraint(Sketcher.Constraint("Diameter", 0, Q("3 mm")))
sketch15.addConstraint(Sketcher.Constraint("Diameter", 4, Q("20 mm")))
sketch15.addConstraint(Sketcher.Constraint("DistanceX", 0, 3, -1, 1, Q("115 mm")))
sketch15.addConstraint(Sketcher.Constraint("DistanceX", 2, 3, -1, 1, Q("84 mm")))
sketch15.addConstraint(Sketcher.Constraint("DistanceX", 4, 3, -1, 1, Q("95 mm")))
sketch15.addConstraint(Sketcher.Constraint("DistanceY", 1, 3, -1, 1, Q("94.8 mm")))
sketch15.addConstraint(Sketcher.Constraint("DistanceY", 0, 3, -1, 1, Q("20.26857 mm")))
sketch15.addConstraint(Sketcher.Constraint("DistanceY", 4, 3, -1, 1, Q("107.048944 mm")))
pocket7 = body.newObject("PartDesign::Pocket", "Pocket006")
pocket7.Profile = sketch15
pocket7.Length = 10
pocket7.Reversed = True

# Sketch on XY plane
sketch16 = body.newObject("Sketcher::SketchObject", "Sketch015")
sketch16.AttachmentSupport = (doc.getObject("XY_Plane"), [""])
sketch16.MapMode = "FlatFace"
sketch16.addGeometry(Part.Circle(V(-94, -7, 0), V(0, 0, 1), 10), False)
sketch16.addConstraint(Sketcher.Constraint("Diameter", 0, Q("20 mm")))
sketch16.addConstraint(Sketcher.Constraint("DistanceX", 0, 3, -1, 1, Q("94 mm")))
sketch16.addConstraint(Sketcher.Constraint("DistanceY", 0, 3, -1, 1, Q("7.048944 mm")))
pocket8 = body.newObject("PartDesign::Pocket", "Pocket007")
pocket8.Profile = sketch16
pocket8.Length = 10
pocket8.Reversed = True

# Sketch on XY plane
sketch17 = body.newObject("Sketcher::SketchObject", "Sketch016")
sketch17.AttachmentSupport = (doc.getObject("XY_Plane"), [""])
sketch17.MapMode = "FlatFace"
sketch17.addGeometry(Part.LineSegment(V(-110, 0, 0), V(-110, -12, 0)), False)
sketch17.addGeometry(Part.LineSegment(V(-110, -12, 0), V(-129, -12, 0)), False)
sketch17.addGeometry(Part.LineSegment(V(-129, -12, 0), V(-129, 0, 0)), False)
sketch17.addGeometry(Part.LineSegment(V(-129, 0, 0), V(-110, 0, 0)), False)
sketch17.addConstraint(Sketcher.Constraint("Coincident", 0, 2, 1, 1))
sketch17.addConstraint(Sketcher.Constraint("Coincident", 1, 2, 2, 1))
sketch17.addConstraint(Sketcher.Constraint("Coincident", 2, 2, 3, 1))
sketch17.addConstraint(Sketcher.Constraint("Coincident", 3, 2, 0, 1))
sketch17.addConstraint(Sketcher.Constraint("Vertical", 0))
sketch17.addConstraint(Sketcher.Constraint("Horizontal", 1))
sketch17.addConstraint(Sketcher.Constraint("Vertical", 2))
sketch17.addConstraint(Sketcher.Constraint("Horizontal", 3))
sketch17.addConstraint(Sketcher.Constraint("PointOnObject", 2, 2, -1))
sketch17.addConstraint(Sketcher.Constraint("DistanceX", 1, 2, 1, 1, Q("19 mm")))
sketch17.addConstraint(Sketcher.Constraint("DistanceY", 0, 2, 0, 1, Q("12 mm")))
sketch17.addConstraint(Sketcher.Constraint("DistanceX", 0, 2, -1, 1, Q("109.899363 mm")))
pocket9 = body.newObject("PartDesign::Pocket", "Pocket008")
pocket9.Profile = sketch17
pocket9.Length = 10
pocket9.Reversed = True

# Sketch on XY plane
sketch18 = body.newObject("Sketcher::SketchObject", "Sketch017")
sketch18.AttachmentSupport = (doc.getObject("XY_Plane"), [""])
sketch18.MapMode = "FlatFace"
sketch18.addGeometry(Part.Circle(V(-25.3, -57.5, 0), V(0, 0, 1), 5), False)
sketch18.addGeometry(Part.LineSegment(V(-15, -47.5, 0), V(-15, -67.5, 0)), False)
sketch18.addGeometry(Part.LineSegment(V(-15, -67.5, 0), V(-16, -67.5, 0)), False)
sketch18.addGeometry(Part.LineSegment(V(-16, -67.5, 0), V(-16, -47.5, 0)), False)
sketch18.addGeometry(Part.LineSegment(V(-16, -47.5, 0), V(-15, -47.5, 0)), False)
sketch18.addConstraint(Sketcher.Constraint("Coincident", 1, 2, 2, 1))
sketch18.addConstraint(Sketcher.Constraint("Coincident", 2, 2, 3, 1))
sketch18.addConstraint(Sketcher.Constraint("Coincident", 3, 2, 4, 1))
sketch18.addConstraint(Sketcher.Constraint("Coincident", 4, 2, 1, 1))
sketch18.addConstraint(Sketcher.Constraint("Vertical", 1))
sketch18.addConstraint(Sketcher.Constraint("Horizontal", 2))
sketch18.addConstraint(Sketcher.Constraint("Vertical", 3))
sketch18.addConstraint(Sketcher.Constraint("Horizontal", 4))
sketch18.addConstraint(Sketcher.Constraint("Diameter", 0, Q("10 mm")))
sketch18.addConstraint(Sketcher.Constraint("DistanceX", 2, 2, 2, 1, Q("1 mm")))
sketch18.addConstraint(Sketcher.Constraint("DistanceY", 1, 2, 1, 1, Q("20 mm")))
sketch18.addConstraint(Sketcher.Constraint("DistanceX", 1, 2, -1, 1, Q("15 mm")))
sketch18.addConstraint(Sketcher.Constraint("DistanceX", 0, 3, -1, 1, Q("25.33544 mm")))
sketch18.addConstraint(Sketcher.Constraint("DistanceY", 1, 2, -1, 1, Q("67.49857 mm")))
sketch18.addConstraint(Sketcher.Constraint("DistanceY", 0, 3, -1, 1, Q("57.496286 mm")))
pocket10 = body.newObject("PartDesign::Pocket", "Pocket009")
pocket10.Profile = sketch18
pocket10.Length = 10
pocket10.Reversed = True

# Sketch on XY plane
sketch19 = body.newObject("Sketcher::SketchObject", "Sketch018")
sketch19.AttachmentSupport = (doc.getObject("XY_Plane"), [""])
sketch19.MapMode = "FlatFace"
sketch19.addGeometry(Part.Circle(V(-53, -20.3, 0), V(0, 0, 1), 1.5), False)
sketch19.addGeometry(Part.Circle(V(-53, -94.8, 0), V(0, 0, 1), 1.5), False)
sketch19.addConstraint(Sketcher.Constraint("Equal", 0, 1))
sketch19.addConstraint(Sketcher.Constraint("Vertical", 0, 3, 1, 3))
sketch19.addConstraint(Sketcher.Constraint("Diameter", 0, Q("3 mm")))
sketch19.addConstraint(Sketcher.Constraint("DistanceX", 0, 3, -1, 1, Q("53 mm")))
sketch19.addConstraint(Sketcher.Constraint("DistanceY", 1, 3, -1, 1, Q("94.8 mm")))
sketch19.addConstraint(Sketcher.Constraint("DistanceY", 0, 3, -1, 1, Q("20.26857 mm")))
pocket11 = body.newObject("PartDesign::Pocket", "Pocket010")
pocket11.Profile = sketch19
pocket11.Length = 10
pocket11.Reversed = True

# Sketch on XY plane
sketch20 = body.newObject("Sketcher::SketchObject", "Sketch019")
sketch20.AttachmentSupport = (doc.getObject("XY_Plane"), [""])
sketch20.MapMode = "FlatFace"
sketch20.addGeometry(Part.Circle(V(-19.9, -5.2, 0), V(0, 0, 1), 1.6), False)
sketch20.addGeometry(Part.Circle(V(-33, -5.1, 0), V(0, 0, 1), 1.5), False)
sketch20.addGeometry(Part.Circle(V(-100, 9.9, 0), V(0, 0, 1), 1.5), False)
sketch20.addGeometry(Part.Circle(V(-87, 9.9, 0), V(0, 0, 1), 1.5), False)
sketch20.addGeometry(Part.Circle(V(-95, -107, 0), V(0, 0, 1), 10), False)
sketch20.addGeometry(Part.Circle(V(-20, -109.6, 0), V(0, 0, 1), 1.5), False)
sketch20.addGeometry(Part.Circle(V(-33, -109.9, 0), V(0, 0, 1), 1.5), False)
sketch20.addGeometry(Part.Circle(V(-87, -125, 0), V(0, 0, 1), 1.5), False)
sketch20.addGeometry(Part.Circle(V(-71.8, -125, 0), V(0, 0, 1), 2.6), False)
sketch20.addGeometry(Part.Circle(V(-100, -125, 0), V(0, 0, 1), 1.5), False)
sketch20.addGeometry(Part.Circle(V(-113.5, -125, 0), V(0, 0, 1), 1.5), False)
sketch20.addGeometry(Part.Circle(V(-130, -20.1, 0), V(0, 0, 1), 1.5), False)
sketch20.addGeometry(Part.Circle(V(-130, -33.1, 0), V(0, 0, 1), 1.5), False)
sketch20.addGeometry(Part.Circle(V(-130, -82, 0), V(0, 0, 1), 1.5), False)
sketch20.addGeometry(Part.Circle(V(-130, -95, 0), V(0, 0, 1), 1.5), False)
sketch20.addGeometry(Part.Circle(V(-115, -20.3, 0), V(0, 0, 1), 1.5), False)
sketch20.addGeometry(Part.Circle(V(-115, -94.8, 0), V(0, 0, 1), 1.5), False)
sketch20.addConstraint(Sketcher.Constraint("Equal", 1, 2))
sketch20.addConstraint(Sketcher.Constraint("Equal", 2, 5))
sketch20.addConstraint(Sketcher.Constraint("Equal", 5, 6))
sketch20.addConstraint(Sketcher.Constraint("Equal", 6, 7))
sketch20.addConstraint(Sketcher.Constraint("Equal", 7, 9))
sketch20.addConstraint(Sketcher.Constraint("Equal", 9, 10))
sketch20.addConstraint(Sketcher.Constraint("Equal", 10, 11))
sketch20.addConstraint(Sketcher.Constraint("Equal", 11, 12))
sketch20.addConstraint(Sketcher.Constraint("Equal", 12, 13))
sketch20.addConstraint(Sketcher.Constraint("Equal", 13, 14))
sketch20.addConstraint(Sketcher.Constraint("Equal", 14, 15))
sketch20.addConstraint(Sketcher.Constraint("Equal", 15, 16))
sketch20.addConstraint(Sketcher.Constraint("Horizontal", 2, 3, 3, 3))
sketch20.addConstraint(Sketcher.Constraint("Horizontal", 7, 3, 8, 3))
sketch20.addConstraint(Sketcher.Constraint("Horizontal", 8, 3, 9, 3))
sketch20.addConstraint(Sketcher.Constraint("Horizontal", 9, 3, 10, 3))
sketch20.addConstraint(Sketcher.Constraint("Vertical", 1, 3, 6, 3))
sketch20.addConstraint(Sketcher.Constraint("Vertical", 2, 3, 9, 3))
sketch20.addConstraint(Sketcher.Constraint("Vertical", 11, 3, 12, 3))
sketch20.addConstraint(Sketcher.Constraint("Vertical", 12, 3, 13, 3))
sketch20.addConstraint(Sketcher.Constraint("Vertical", 13, 3, 14, 3))
sketch20.addConstraint(Sketcher.Constraint("Vertical", 15, 3, 16, 3))
sketch20.addConstraint(Sketcher.Constraint("Diameter", 1, Q("3 mm")))
sketch20.addConstraint(Sketcher.Constraint("Diameter", 4, Q("20 mm")))
sketch20.addConstraint(Sketcher.Constraint("DistanceX", 2, 3, -1, 1, Q("100 mm")))
sketch20.addConstraint(Sketcher.Constraint("DistanceX", 4, 3, -1, 1, Q("95 mm")))
sketch20.addConstraint(Sketcher.Constraint("DistanceX", 5, 3, -1, 1, Q("20 mm")))
sketch20.addConstraint(Sketcher.Constraint("DistanceX", 7, 3, -1, 1, Q("87 mm")))
sketch20.addConstraint(Sketcher.Constraint("DistanceY", 7, 3, -1, 1, Q("125 mm")))
sketch20.addConstraint(Sketcher.Constraint("DistanceX", 11, 3, -1, 1, Q("130 mm")))
sketch20.addConstraint(Sketcher.Constraint("DistanceY", 13, 3, -1, 1, Q("82 mm")))
sketch20.addConstraint(Sketcher.Constraint("DistanceY", 14, 3, -1, 1, Q("95 mm")))
sketch20.addConstraint(Sketcher.Constraint("DistanceX", 15, 3, -1, 1, Q("115 mm")))
sketch20.addConstraint(Sketcher.Constraint("DistanceY", 1, 3, 2, 3, Q("15 mm")))
sketch20.addConstraint(Sketcher.Constraint("DistanceY", 11, 3, 2, 3, Q("30 mm")))
sketch20.addConstraint(Sketcher.Constraint("DistanceY", 12, 3, 11, 3, Q("13 mm")))
sketch20.addConstraint(Sketcher.Constraint("DistanceY", 16, 3, -1, 1, Q("94.8 mm")))
sketch20.addConstraint(Sketcher.Constraint("DistanceY", 15, 3, 11, 3, Q("0.2 mm")))
sketch20.addConstraint(Sketcher.Constraint("Diameter", 0, Q("3.247222 mm")))
sketch20.addConstraint(Sketcher.Constraint("Diameter", 3, Q("2.915366 mm")))
sketch20.addConstraint(Sketcher.Constraint("Diameter", 8, Q("5.266477 mm")))
sketch20.addConstraint(Sketcher.Constraint("DistanceY", 5, 3, 1, 3, Q("104.562598 mm")))
sketch20.addConstraint(Sketcher.Constraint("DistanceY", 0, 3, -1, 1, Q("5.154579 mm")))
sketch20.addConstraint(Sketcher.Constraint("DistanceX", 1, 3, -1, 1, Q("32.996532 mm")))
sketch20.addConstraint(Sketcher.Constraint("DistanceY", 1, 3, -1, 1, Q("5.06857 mm")))
sketch20.addConstraint(Sketcher.Constraint("DistanceY", 6, 3, -1, 1, Q("109.93143 mm")))
sketch20.addConstraint(Sketcher.Constraint("DistanceX", 10, 3, -1, 1, Q("113.463351 mm")))
sketch20.addConstraint(Sketcher.Constraint("DistanceX", 3, 3, 1, 3, Q("53.961151 mm")))
sketch20.addConstraint(Sketcher.Constraint("DistanceX", 0, 3, -1, 1, Q("19.911218 mm")))
sketch20.addConstraint(Sketcher.Constraint("DistanceY", 4, 3, -1, 1, Q("107.048944 mm")))
sketch20.addConstraint(Sketcher.Constraint("DistanceX", 8, 3, -1, 1, Q("71.839857 mm")))
pad9 = body.newObject("PartDesign::Pad", "Pad008")
pad9.Profile = sketch20
pad9.Length = 1

# Sketch on XY plane
sketch21 = body.newObject("Sketcher::SketchObject", "Sketch020")
sketch21.AttachmentSupport = (doc.getObject("XY_Plane"), [""])
sketch21.MapMode = "FlatFace"
sketch21.addGeometry(Part.Circle(V(-87, 9.8, 0), V(0, 0, 1), 1.9), False)
sketch21.addConstraint(Sketcher.Constraint("Diameter", 0, Q("3.782679 mm")))
sketch21.addConstraint(Sketcher.Constraint("DistanceY", -1, 1, 0, 3, Q("9.821401 mm")))
sketch21.addConstraint(Sketcher.Constraint("DistanceX", 0, 3, -1, 1, Q("86.989398 mm")))
pad10 = body.newObject("PartDesign::Pad", "Pad009")
pad10.Profile = sketch21
pad10.Length = 1

# Sketch on XY plane
sketch22 = body.newObject("Sketcher::SketchObject", "Sketch021")
sketch22.AttachmentSupport = (doc.getObject("XY_Plane"), [""])
sketch22.MapMode = "FlatFace"
sketch22.addGeometry(Part.LineSegment(V(-13, -47.5, 0), V(-13, -67.5, 0)), False)
sketch22.addGeometry(Part.LineSegment(V(-13, -67.5, 0), V(-15, -67.5, 0)), False)
sketch22.addGeometry(Part.LineSegment(V(-15, -67.5, 0), V(-15, -47.5, 0)), False)
sketch22.addGeometry(Part.LineSegment(V(-15, -47.5, 0), V(-13, -47.5, 0)), False)
sketch22.addConstraint(Sketcher.Constraint("Coincident", 0, 2, 1, 1))
sketch22.addConstraint(Sketcher.Constraint("Coincident", 1, 2, 2, 1))
sketch22.addConstraint(Sketcher.Constraint("Coincident", 2, 2, 3, 1))
sketch22.addConstraint(Sketcher.Constraint("Coincident", 3, 2, 0, 1))
sketch22.addConstraint(Sketcher.Constraint("Vertical", 0))
sketch22.addConstraint(Sketcher.Constraint("Horizontal", 1))
sketch22.addConstraint(Sketcher.Constraint("Vertical", 2))
sketch22.addConstraint(Sketcher.Constraint("Horizontal", 3))
sketch22.addConstraint(Sketcher.Constraint("DistanceX", 1, 2, 1, 1, Q("2 mm")))
sketch22.addConstraint(Sketcher.Constraint("DistanceX", 0, 2, -1, 1, Q("13 mm")))
sketch22.addConstraint(Sketcher.Constraint("DistanceY", 0, 2, 0, 1, Q("20.001507 mm")))
sketch22.addConstraint(Sketcher.Constraint("DistanceY", 0, 2, -1, 1, Q("67.49857 mm")))
pocket12 = body.newObject("PartDesign::Pocket", "Pocket011")
pocket12.Profile = sketch22
pocket12.Length = 1
pocket12.Reversed = True

# Sketch on XY plane
sketch23 = body.newObject("Sketcher::SketchObject", "Sketch022")
sketch23.AttachmentSupport = (doc.getObject("XY_Plane"), [""])
sketch23.MapMode = "FlatFace"
sketch23.addGeometry(Part.Circle(V(-103, 7.4, 0), V(0, 0, 1), 1.5), False)
sketch23.addGeometry(Part.Circle(V(-95, 7.4, 0), V(0, 0, 1), 1.5), False)
sketch23.addGeometry(Part.Circle(V(-87, 7.4, 0), V(0, 0, 1), 1.5), False)
sketch23.addGeometry(Part.Circle(V(-103, -122.5, 0), V(0, 0, 1), 1.5), False)
sketch23.addGeometry(Part.Circle(V(-95, -122.5, 0), V(0, 0, 1), 1.5), False)
sketch23.addGeometry(Part.Circle(V(-87, -122.5, 0), V(0, 0, 1), 1.5), False)
sketch23.addConstraint(Sketcher.Constraint("Equal", 0, 1))
sketch23.addConstraint(Sketcher.Constraint("Equal", 1, 2))
sketch23.addConstraint(Sketcher.Constraint("Equal", 2, 3))
sketch23.addConstraint(Sketcher.Constraint("Equal", 3, 4))
sketch23.addConstraint(Sketcher.Constraint("Equal", 4, 5))
sketch23.addConstraint(Sketcher.Constraint("Horizontal", 0, 3, 1, 3))
sketch23.addConstraint(Sketcher.Constraint("Horizontal", 1, 3, 2, 3))
sketch23.addConstraint(Sketcher.Constraint("Horizontal", 3, 3, 4, 3))
sketch23.addConstraint(Sketcher.Constraint("Horizontal", 4, 3, 5, 3))
sketch23.addConstraint(Sketcher.Constraint("Vertical", 0, 3, 3, 3))
sketch23.addConstraint(Sketcher.Constraint("Vertical", 1, 3, 4, 3))
sketch23.addConstraint(Sketcher.Constraint("Vertical", 2, 3, 5, 3))
sketch23.addConstraint(Sketcher.Constraint("Diameter", 0, Q("3 mm")))
sketch23.addConstraint(Sketcher.Constraint("DistanceX", 0, 3, -1, 1, Q("103 mm")))
sketch23.addConstraint(Sketcher.Constraint("DistanceX", 1, 3, -1, 1, Q("95 mm")))
sketch23.addConstraint(Sketcher.Constraint("DistanceX", 2, 3, -1, 1, Q("87 mm")))
sketch23.addConstraint(Sketcher.Constraint("DistanceY", 3, 3, -1, 1, Q("122.5 mm")))
sketch23.addConstraint(Sketcher.Constraint("DistanceY", -1, 1, 0, 3, Q("7.43143 mm")))
pocket13 = body.newObject("PartDesign::Pocket", "Pocket012")
pocket13.Profile = sketch23
pocket13.Length = 1
pocket13.Reversed = True

doc.recompute()
